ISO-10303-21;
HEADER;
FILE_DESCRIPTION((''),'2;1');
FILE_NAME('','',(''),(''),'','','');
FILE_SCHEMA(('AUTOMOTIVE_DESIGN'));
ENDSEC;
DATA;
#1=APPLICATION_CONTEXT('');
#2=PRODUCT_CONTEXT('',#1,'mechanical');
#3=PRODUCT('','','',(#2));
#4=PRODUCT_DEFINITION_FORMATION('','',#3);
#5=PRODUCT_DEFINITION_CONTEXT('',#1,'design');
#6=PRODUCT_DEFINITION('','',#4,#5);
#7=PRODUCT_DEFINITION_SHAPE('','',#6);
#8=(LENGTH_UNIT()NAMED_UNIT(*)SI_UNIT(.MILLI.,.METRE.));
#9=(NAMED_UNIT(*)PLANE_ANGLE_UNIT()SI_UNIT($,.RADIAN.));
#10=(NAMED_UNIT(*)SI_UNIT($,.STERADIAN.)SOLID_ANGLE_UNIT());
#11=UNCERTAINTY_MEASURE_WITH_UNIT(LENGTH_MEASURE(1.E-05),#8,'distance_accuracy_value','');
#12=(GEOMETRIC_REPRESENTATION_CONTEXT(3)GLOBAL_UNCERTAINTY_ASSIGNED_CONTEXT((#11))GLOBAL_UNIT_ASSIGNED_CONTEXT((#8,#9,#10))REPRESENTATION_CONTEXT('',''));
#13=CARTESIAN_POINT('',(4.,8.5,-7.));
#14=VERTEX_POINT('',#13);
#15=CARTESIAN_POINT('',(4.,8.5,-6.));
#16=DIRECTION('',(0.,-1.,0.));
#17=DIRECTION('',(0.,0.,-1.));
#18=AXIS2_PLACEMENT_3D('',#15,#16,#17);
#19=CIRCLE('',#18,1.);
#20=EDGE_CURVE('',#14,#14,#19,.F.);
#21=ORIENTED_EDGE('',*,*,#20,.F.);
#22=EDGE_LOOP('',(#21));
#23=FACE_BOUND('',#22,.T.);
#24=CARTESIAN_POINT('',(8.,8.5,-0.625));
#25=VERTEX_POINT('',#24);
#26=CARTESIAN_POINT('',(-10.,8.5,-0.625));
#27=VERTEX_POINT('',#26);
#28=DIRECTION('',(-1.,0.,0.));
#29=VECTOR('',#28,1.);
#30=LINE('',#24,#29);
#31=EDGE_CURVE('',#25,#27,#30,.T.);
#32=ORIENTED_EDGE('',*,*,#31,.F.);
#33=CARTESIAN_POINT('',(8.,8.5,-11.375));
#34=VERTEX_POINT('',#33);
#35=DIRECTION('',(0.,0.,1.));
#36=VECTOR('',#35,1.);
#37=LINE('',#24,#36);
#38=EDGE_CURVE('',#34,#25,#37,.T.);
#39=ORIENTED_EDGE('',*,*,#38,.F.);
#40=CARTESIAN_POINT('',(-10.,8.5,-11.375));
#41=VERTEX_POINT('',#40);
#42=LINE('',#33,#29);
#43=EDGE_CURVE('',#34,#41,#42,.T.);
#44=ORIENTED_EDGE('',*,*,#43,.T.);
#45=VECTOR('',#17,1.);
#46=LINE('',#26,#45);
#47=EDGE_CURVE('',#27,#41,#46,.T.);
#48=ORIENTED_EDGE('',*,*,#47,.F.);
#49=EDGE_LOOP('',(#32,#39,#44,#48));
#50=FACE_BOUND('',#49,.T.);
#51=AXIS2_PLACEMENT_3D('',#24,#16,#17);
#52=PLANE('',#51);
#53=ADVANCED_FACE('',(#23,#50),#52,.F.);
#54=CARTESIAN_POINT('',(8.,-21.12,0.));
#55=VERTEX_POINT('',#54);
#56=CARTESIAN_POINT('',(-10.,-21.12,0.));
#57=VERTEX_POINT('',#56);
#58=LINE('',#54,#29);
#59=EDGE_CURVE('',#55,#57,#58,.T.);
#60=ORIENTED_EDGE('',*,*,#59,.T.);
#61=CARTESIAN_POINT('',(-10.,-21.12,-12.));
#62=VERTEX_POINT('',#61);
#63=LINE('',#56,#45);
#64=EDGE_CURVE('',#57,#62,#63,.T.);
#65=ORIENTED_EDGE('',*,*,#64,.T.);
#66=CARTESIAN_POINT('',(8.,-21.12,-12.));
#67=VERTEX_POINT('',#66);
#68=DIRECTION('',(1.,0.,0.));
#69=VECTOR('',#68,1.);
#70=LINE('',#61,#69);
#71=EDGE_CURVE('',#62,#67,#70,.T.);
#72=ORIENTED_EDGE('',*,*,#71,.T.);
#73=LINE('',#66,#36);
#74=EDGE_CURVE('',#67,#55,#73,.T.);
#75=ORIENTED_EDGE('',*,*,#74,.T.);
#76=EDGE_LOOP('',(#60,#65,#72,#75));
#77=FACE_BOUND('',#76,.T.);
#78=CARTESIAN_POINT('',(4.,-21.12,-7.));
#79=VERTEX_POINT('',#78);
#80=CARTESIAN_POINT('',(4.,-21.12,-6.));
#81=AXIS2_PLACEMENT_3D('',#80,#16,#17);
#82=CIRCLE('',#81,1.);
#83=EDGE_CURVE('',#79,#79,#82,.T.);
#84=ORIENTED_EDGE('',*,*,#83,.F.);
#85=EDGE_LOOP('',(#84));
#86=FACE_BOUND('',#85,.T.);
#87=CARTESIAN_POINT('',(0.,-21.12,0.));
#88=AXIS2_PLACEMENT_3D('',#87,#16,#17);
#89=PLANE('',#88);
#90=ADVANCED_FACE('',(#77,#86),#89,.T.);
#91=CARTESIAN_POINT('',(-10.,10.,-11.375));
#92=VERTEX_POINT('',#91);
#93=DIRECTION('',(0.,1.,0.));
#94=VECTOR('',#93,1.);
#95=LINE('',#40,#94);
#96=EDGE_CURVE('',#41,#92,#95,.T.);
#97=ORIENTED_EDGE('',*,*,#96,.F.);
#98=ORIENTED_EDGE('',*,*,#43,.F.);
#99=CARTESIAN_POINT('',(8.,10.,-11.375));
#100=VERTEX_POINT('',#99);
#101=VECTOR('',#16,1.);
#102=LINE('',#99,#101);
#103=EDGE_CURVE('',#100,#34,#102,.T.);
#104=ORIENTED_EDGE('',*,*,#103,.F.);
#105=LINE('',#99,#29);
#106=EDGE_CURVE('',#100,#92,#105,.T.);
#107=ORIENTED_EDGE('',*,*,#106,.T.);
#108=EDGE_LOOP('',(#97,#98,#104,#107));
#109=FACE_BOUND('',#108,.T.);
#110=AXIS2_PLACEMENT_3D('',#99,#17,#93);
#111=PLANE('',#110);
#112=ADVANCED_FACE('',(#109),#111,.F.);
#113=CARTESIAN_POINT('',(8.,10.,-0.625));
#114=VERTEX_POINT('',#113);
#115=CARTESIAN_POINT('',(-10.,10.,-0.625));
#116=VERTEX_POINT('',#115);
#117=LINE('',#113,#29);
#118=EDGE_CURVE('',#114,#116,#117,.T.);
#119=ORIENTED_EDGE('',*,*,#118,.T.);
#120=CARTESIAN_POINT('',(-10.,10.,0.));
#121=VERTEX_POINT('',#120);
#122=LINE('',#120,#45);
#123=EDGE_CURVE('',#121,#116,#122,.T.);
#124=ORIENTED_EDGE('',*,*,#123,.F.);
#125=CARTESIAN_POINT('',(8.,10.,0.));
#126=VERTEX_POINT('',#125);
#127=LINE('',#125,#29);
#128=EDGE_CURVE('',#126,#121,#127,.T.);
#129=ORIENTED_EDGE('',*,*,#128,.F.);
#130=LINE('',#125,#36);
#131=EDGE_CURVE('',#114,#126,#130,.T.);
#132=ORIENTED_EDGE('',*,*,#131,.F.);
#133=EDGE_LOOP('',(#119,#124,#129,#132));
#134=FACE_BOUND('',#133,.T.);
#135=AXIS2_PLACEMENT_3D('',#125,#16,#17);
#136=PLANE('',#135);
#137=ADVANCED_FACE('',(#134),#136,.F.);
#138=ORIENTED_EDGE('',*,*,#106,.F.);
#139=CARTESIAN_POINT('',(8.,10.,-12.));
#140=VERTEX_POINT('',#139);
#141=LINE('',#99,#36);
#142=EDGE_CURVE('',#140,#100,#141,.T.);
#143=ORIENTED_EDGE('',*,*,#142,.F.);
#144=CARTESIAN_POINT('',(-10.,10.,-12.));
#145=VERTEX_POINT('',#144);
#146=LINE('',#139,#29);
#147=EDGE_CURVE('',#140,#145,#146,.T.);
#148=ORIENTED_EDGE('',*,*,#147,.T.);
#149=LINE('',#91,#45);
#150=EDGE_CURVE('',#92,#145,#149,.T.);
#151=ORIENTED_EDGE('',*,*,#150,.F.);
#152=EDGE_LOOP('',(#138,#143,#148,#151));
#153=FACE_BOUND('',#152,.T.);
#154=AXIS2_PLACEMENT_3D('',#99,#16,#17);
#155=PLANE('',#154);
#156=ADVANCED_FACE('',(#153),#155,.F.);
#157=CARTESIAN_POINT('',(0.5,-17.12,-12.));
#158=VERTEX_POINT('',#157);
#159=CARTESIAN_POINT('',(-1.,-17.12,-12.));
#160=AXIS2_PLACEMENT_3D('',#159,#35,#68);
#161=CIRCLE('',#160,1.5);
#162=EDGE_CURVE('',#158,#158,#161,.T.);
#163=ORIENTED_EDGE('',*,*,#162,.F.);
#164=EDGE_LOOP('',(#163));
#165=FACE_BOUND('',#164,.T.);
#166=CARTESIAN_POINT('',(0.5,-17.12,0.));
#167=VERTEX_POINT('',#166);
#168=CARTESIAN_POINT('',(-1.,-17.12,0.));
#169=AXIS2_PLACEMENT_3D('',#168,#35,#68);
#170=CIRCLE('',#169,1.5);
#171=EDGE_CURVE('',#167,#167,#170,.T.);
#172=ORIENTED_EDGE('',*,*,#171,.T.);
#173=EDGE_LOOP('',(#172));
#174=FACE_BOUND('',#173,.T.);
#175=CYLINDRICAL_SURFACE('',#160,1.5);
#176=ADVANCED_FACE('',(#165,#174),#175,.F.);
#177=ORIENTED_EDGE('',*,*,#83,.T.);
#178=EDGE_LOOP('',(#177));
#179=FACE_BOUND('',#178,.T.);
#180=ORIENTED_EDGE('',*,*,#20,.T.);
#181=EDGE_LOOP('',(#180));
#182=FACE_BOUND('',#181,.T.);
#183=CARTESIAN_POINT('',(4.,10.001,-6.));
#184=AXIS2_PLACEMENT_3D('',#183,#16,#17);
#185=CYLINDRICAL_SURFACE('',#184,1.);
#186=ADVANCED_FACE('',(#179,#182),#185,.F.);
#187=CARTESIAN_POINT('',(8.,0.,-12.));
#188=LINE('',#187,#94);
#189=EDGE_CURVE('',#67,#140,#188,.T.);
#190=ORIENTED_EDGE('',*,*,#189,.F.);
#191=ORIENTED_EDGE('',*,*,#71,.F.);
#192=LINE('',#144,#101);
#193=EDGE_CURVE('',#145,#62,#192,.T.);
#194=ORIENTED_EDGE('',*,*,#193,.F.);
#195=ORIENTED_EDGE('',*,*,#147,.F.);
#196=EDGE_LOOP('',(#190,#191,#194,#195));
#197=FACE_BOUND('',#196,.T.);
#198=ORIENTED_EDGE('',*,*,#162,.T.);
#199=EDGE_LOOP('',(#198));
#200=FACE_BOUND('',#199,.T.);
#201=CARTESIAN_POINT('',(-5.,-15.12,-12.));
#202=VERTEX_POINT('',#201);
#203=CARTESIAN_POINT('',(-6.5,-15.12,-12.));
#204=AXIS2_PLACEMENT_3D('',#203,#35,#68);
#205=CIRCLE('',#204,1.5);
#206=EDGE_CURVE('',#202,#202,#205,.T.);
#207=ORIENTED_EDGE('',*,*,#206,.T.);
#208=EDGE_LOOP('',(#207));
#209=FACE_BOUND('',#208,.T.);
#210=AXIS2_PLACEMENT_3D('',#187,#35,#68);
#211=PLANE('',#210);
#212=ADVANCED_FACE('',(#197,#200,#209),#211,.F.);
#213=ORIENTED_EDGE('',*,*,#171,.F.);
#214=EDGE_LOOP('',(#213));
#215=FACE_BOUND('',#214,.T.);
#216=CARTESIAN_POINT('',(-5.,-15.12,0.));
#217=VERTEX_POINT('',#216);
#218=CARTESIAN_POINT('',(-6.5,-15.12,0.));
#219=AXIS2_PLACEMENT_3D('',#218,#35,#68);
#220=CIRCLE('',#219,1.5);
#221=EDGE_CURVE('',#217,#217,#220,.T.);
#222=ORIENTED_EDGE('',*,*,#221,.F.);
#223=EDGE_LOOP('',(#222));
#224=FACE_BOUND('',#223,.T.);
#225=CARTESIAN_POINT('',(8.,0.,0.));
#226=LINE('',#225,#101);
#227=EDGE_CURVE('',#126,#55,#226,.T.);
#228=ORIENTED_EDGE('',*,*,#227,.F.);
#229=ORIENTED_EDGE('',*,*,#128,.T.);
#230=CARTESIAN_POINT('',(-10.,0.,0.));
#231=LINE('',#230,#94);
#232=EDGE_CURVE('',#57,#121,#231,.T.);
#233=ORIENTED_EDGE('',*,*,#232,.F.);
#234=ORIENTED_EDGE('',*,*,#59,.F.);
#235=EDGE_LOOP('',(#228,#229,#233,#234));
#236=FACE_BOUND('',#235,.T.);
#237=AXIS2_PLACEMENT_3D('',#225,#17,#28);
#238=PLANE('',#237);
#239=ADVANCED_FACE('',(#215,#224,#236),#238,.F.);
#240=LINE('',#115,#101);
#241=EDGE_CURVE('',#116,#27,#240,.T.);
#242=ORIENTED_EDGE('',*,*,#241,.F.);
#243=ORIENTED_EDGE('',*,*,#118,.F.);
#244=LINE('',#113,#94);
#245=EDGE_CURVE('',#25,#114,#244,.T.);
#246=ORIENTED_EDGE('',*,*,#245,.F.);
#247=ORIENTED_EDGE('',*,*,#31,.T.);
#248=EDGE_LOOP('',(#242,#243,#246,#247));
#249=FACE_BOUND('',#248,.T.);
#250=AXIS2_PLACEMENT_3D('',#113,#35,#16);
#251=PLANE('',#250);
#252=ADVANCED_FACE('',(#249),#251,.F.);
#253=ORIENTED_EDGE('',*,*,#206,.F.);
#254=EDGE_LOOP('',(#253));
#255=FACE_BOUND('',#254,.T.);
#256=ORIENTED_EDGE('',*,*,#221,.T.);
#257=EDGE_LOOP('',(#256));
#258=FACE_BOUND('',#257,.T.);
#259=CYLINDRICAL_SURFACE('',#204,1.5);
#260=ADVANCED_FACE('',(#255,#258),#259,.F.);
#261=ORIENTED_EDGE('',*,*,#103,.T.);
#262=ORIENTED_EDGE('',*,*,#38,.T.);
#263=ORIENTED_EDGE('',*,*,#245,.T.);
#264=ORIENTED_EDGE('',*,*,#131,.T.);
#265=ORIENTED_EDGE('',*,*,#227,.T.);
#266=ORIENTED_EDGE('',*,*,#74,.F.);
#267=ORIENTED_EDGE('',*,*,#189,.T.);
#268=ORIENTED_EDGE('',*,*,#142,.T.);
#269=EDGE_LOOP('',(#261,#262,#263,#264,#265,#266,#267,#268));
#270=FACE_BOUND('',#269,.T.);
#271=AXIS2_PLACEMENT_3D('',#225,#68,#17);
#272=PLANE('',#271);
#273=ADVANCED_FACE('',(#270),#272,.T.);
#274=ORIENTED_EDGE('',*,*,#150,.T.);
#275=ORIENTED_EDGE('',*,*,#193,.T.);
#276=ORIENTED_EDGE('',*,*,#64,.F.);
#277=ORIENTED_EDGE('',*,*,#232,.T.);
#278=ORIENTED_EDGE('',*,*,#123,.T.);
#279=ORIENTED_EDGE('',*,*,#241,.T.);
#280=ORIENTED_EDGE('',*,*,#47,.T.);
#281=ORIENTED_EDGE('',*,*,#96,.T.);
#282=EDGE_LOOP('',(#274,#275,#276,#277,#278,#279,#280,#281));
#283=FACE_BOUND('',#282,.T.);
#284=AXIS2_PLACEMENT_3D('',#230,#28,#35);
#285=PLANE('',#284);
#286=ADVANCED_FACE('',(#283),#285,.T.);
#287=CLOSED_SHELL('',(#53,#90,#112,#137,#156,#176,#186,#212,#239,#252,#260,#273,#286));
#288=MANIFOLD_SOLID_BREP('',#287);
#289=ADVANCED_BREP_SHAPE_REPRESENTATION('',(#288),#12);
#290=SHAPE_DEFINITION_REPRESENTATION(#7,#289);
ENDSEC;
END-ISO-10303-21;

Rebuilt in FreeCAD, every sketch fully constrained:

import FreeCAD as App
import Part
import Sketcher


def add_polygon(sketch, points):
    """Adds a closed chain of lines whose ends are joined by coincident constraints."""
    first, n = sketch.GeometryCount, len(points)
    for a, b in zip(points, points[1:] + points[:1]):
        sketch.addGeometry(Part.LineSegment(App.Vector(*a, 0), App.Vector(*b, 0)), False)
    for i in range(n):
        sketch.addConstraint(Sketcher.Constraint("Coincident", first + i, 2, first + (i + 1) % n, 1))

doc = App.newDocument("Part")
body = doc.addObject("PartDesign::Body", "Body")

sketch1 = body.newObject("Sketcher::SketchObject", "Sketch")
sketch1.AttachmentSupport = (doc.getObject("YZ_Plane"), [""])
sketch1.MapMode = "FlatFace"
add_polygon(sketch1, [(10, 0), (0, 0), (0, -12), (10, -12), (10, -11.4), (8.5, -11.4), (8.5, -0.6), (10, -0.6)])
sketch1.addConstraint(Sketcher.Constraint("Horizontal", 0))
sketch1.addConstraint(Sketcher.Constraint("Vertical", 1))
sketch1.addConstraint(Sketcher.Constraint("Horizontal", 2))
sketch1.addConstraint(Sketcher.Constraint("Vertical", 3))
sketch1.addConstraint(Sketcher.Constraint("Horizontal", 4))
sketch1.addConstraint(Sketcher.Constraint("Vertical", 5))
sketch1.addConstraint(Sketcher.Constraint("Horizontal", 6))
sketch1.addConstraint(Sketcher.Constraint("Vertical", 7))
sketch1.addConstraint(Sketcher.Constraint("Coincident", 0, 2, -1, 1))
sketch1.addConstraint(Sketcher.Constraint("Vertical", 3, 2, 6, 2))
sketch1.addConstraint(Sketcher.Constraint("Equal", 3, 7))
sketch1.addConstraint(Sketcher.Constraint("DistanceX", 0, 2, 0, 1, 10.0))
sketch1.addConstraint(Sketcher.Constraint("DistanceY", 1, 2, 1, 1, 12.0))
sketch1.addConstraint(Sketcher.Constraint("DistanceX", 4, 2, 4, 1, 1.5))
sketch1.addConstraint(Sketcher.Constraint("DistanceY", 5, 1, 5, 2, 10.75))
pad1 = body.newObject("PartDesign::Pad", "Pad")
pad1.Profile = sketch1
pad1.Length = 8

sketch2 = body.newObject("Sketcher::SketchObject", "Sketch001")
sketch2.AttachmentSupport = (doc.getObject("XZ_Plane"), [""])
sketch2.MapMode = "FlatFace"
sketch2.addGeometry(Part.Circle(App.Vector(4, -6, 0), App.Vector(0, 0, 1), 1), False)
sketch2.addConstraint(Sketcher.Constraint("Diameter", 0, 2.0))
sketch2.addConstraint(Sketcher.Constraint("DistanceX", -1, 1, 0, 3, 4.0))
sketch2.addConstraint(Sketcher.Constraint("DistanceY", 0, 3, -1, 1, 6.0))
pocket1 = body.newObject("PartDesign::Pocket", "Pocket")
pocket1.Profile = sketch2
pocket1.Type = "UpToFirst"

sketch3 = body.newObject("Sketcher::SketchObject", "Sketch002")
sketch3.AttachmentSupport = (doc.getObject("YZ_Plane"), [""])
sketch3.MapMode = "FlatFace"
add_polygon(sketch3, [(0, -12), (0, 0), (10, 0), (10, -0.6), (8.5, -0.6), (8.5, -11.4), (10, -11.4), (10, -12)])
sketch3.addConstraint(Sketcher.Constraint("Vertical", 0))
sketch3.addConstraint(Sketcher.Constraint("Horizontal", 1))
sketch3.addConstraint(Sketcher.Constraint("Vertical", 2))
sketch3.addConstraint(Sketcher.Constraint("Horizontal", 3))
sketch3.addConstraint(Sketcher.Constraint("Vertical", 4))
sketch3.addConstraint(Sketcher.Constraint("Horizontal", 5))
sketch3.addConstraint(Sketcher.Constraint("Vertical", 6))
sketch3.addConstraint(Sketcher.Constraint("Horizontal", 7))
sketch3.addConstraint(Sketcher.Constraint("Coincident", 0, 2, -1, 1))
sketch3.addConstraint(Sketcher.Constraint("Vertical", 2, 2, 5, 2))
sketch3.addConstraint(Sketcher.Constraint("Equal", 2, 6))
sketch3.addConstraint(Sketcher.Constraint("DistanceX", 1, 1, 1, 2, 10.0))
sketch3.addConstraint(Sketcher.Constraint("DistanceY", 0, 1, 0, 2, 12.0))
sketch3.addConstraint(Sketcher.Constraint("DistanceX", 3, 2, 3, 1, 1.5))
sketch3.addConstraint(Sketcher.Constraint("DistanceY", 4, 2, 4, 1, 10.75))
pad2 = body.newObject("PartDesign::Pad", "Pad001")
pad2.Profile = sketch3
pad2.Length = 10
pad2.Reversed = True

sketch4 = body.newObject("Sketcher::SketchObject", "Sketch003")
sketch4.AttachmentSupport = (doc.getObject("XZ_Plane"), [""])
sketch4.MapMode = "FlatFace"
add_polygon(sketch4, [(-10, 0), (-10, -12), (8, -12), (8, 0)])
sketch4.addGeometry(Part.Circle(App.Vector(4, -6, 0), App.Vector(0, 0, 1), 1), False)
sketch4.addConstraint(Sketcher.Constraint("Vertical", 0))
sketch4.addConstraint(Sketcher.Constraint("Horizontal", 1))
sketch4.addConstraint(Sketcher.Constraint("Vertical", 2))
sketch4.addConstraint(Sketcher.Constraint("Horizontal", 3))
sketch4.addConstraint(Sketcher.Constraint("PointOnObject", 2, 2, -1))
sketch4.addConstraint(Sketcher.Constraint("Diameter", 4, 2.0))
sketch4.addConstraint(Sketcher.Constraint("DistanceX", 1, 1, 1, 2, 18.0))
sketch4.addConstraint(Sketcher.Constraint("DistanceY", 0, 2, 0, 1, 12.0))
sketch4.addConstraint(Sketcher.Constraint("DistanceX", -1, 1, 4, 3, 4.0))
sketch4.addConstraint(Sketcher.Constraint("DistanceY", 4, 3, -1, 1, 6.0))
sketch4.addConstraint(Sketcher.Constraint("DistanceX", 0, 2, -1, 1, 10.0))
pad3 = body.newObject("PartDesign::Pad", "Pad002")
pad3.Profile = sketch4
pad3.Length = 21.12

sketch5 = body.newObject("Sketcher::SketchObject", "Sketch004")
sketch5.AttachmentSupport = (doc.getObject("XY_Plane"), [""])
sketch5.MapMode = "FlatFace"
sketch5.addGeometry(Part.Circle(App.Vector(-6.5, -15.1, 0), App.Vector(0, 0, 1), 1.5), False)
sketch5.addGeometry(Part.Circle(App.Vector(-1, -17.1, 0), App.Vector(0, 0, 1), 1.5), False)
sketch5.addConstraint(Sketcher.Constraint("Equal", 0, 1))
sketch5.addConstraint(Sketcher.Constraint("Diameter", 0, 3.0))
sketch5.addConstraint(Sketcher.Constraint("DistanceX", 1, 3, -1, 1, 1.0))
sketch5.addConstraint(Sketcher.Constraint("DistanceY", 1, 3, 0, 3, 2.0))
sketch5.addConstraint(Sketcher.Constraint("DistanceX", 0, 3, -1, 1, 6.5))
sketch5.addConstraint(Sketcher.Constraint("DistanceY", 0, 3, -1, 1, 15.12))
pocket2 = body.newObject("PartDesign::Pocket", "Pocket001")
pocket2.Profile = sketch5
pocket2.Type = "ThroughAll"

doc.recompute()
